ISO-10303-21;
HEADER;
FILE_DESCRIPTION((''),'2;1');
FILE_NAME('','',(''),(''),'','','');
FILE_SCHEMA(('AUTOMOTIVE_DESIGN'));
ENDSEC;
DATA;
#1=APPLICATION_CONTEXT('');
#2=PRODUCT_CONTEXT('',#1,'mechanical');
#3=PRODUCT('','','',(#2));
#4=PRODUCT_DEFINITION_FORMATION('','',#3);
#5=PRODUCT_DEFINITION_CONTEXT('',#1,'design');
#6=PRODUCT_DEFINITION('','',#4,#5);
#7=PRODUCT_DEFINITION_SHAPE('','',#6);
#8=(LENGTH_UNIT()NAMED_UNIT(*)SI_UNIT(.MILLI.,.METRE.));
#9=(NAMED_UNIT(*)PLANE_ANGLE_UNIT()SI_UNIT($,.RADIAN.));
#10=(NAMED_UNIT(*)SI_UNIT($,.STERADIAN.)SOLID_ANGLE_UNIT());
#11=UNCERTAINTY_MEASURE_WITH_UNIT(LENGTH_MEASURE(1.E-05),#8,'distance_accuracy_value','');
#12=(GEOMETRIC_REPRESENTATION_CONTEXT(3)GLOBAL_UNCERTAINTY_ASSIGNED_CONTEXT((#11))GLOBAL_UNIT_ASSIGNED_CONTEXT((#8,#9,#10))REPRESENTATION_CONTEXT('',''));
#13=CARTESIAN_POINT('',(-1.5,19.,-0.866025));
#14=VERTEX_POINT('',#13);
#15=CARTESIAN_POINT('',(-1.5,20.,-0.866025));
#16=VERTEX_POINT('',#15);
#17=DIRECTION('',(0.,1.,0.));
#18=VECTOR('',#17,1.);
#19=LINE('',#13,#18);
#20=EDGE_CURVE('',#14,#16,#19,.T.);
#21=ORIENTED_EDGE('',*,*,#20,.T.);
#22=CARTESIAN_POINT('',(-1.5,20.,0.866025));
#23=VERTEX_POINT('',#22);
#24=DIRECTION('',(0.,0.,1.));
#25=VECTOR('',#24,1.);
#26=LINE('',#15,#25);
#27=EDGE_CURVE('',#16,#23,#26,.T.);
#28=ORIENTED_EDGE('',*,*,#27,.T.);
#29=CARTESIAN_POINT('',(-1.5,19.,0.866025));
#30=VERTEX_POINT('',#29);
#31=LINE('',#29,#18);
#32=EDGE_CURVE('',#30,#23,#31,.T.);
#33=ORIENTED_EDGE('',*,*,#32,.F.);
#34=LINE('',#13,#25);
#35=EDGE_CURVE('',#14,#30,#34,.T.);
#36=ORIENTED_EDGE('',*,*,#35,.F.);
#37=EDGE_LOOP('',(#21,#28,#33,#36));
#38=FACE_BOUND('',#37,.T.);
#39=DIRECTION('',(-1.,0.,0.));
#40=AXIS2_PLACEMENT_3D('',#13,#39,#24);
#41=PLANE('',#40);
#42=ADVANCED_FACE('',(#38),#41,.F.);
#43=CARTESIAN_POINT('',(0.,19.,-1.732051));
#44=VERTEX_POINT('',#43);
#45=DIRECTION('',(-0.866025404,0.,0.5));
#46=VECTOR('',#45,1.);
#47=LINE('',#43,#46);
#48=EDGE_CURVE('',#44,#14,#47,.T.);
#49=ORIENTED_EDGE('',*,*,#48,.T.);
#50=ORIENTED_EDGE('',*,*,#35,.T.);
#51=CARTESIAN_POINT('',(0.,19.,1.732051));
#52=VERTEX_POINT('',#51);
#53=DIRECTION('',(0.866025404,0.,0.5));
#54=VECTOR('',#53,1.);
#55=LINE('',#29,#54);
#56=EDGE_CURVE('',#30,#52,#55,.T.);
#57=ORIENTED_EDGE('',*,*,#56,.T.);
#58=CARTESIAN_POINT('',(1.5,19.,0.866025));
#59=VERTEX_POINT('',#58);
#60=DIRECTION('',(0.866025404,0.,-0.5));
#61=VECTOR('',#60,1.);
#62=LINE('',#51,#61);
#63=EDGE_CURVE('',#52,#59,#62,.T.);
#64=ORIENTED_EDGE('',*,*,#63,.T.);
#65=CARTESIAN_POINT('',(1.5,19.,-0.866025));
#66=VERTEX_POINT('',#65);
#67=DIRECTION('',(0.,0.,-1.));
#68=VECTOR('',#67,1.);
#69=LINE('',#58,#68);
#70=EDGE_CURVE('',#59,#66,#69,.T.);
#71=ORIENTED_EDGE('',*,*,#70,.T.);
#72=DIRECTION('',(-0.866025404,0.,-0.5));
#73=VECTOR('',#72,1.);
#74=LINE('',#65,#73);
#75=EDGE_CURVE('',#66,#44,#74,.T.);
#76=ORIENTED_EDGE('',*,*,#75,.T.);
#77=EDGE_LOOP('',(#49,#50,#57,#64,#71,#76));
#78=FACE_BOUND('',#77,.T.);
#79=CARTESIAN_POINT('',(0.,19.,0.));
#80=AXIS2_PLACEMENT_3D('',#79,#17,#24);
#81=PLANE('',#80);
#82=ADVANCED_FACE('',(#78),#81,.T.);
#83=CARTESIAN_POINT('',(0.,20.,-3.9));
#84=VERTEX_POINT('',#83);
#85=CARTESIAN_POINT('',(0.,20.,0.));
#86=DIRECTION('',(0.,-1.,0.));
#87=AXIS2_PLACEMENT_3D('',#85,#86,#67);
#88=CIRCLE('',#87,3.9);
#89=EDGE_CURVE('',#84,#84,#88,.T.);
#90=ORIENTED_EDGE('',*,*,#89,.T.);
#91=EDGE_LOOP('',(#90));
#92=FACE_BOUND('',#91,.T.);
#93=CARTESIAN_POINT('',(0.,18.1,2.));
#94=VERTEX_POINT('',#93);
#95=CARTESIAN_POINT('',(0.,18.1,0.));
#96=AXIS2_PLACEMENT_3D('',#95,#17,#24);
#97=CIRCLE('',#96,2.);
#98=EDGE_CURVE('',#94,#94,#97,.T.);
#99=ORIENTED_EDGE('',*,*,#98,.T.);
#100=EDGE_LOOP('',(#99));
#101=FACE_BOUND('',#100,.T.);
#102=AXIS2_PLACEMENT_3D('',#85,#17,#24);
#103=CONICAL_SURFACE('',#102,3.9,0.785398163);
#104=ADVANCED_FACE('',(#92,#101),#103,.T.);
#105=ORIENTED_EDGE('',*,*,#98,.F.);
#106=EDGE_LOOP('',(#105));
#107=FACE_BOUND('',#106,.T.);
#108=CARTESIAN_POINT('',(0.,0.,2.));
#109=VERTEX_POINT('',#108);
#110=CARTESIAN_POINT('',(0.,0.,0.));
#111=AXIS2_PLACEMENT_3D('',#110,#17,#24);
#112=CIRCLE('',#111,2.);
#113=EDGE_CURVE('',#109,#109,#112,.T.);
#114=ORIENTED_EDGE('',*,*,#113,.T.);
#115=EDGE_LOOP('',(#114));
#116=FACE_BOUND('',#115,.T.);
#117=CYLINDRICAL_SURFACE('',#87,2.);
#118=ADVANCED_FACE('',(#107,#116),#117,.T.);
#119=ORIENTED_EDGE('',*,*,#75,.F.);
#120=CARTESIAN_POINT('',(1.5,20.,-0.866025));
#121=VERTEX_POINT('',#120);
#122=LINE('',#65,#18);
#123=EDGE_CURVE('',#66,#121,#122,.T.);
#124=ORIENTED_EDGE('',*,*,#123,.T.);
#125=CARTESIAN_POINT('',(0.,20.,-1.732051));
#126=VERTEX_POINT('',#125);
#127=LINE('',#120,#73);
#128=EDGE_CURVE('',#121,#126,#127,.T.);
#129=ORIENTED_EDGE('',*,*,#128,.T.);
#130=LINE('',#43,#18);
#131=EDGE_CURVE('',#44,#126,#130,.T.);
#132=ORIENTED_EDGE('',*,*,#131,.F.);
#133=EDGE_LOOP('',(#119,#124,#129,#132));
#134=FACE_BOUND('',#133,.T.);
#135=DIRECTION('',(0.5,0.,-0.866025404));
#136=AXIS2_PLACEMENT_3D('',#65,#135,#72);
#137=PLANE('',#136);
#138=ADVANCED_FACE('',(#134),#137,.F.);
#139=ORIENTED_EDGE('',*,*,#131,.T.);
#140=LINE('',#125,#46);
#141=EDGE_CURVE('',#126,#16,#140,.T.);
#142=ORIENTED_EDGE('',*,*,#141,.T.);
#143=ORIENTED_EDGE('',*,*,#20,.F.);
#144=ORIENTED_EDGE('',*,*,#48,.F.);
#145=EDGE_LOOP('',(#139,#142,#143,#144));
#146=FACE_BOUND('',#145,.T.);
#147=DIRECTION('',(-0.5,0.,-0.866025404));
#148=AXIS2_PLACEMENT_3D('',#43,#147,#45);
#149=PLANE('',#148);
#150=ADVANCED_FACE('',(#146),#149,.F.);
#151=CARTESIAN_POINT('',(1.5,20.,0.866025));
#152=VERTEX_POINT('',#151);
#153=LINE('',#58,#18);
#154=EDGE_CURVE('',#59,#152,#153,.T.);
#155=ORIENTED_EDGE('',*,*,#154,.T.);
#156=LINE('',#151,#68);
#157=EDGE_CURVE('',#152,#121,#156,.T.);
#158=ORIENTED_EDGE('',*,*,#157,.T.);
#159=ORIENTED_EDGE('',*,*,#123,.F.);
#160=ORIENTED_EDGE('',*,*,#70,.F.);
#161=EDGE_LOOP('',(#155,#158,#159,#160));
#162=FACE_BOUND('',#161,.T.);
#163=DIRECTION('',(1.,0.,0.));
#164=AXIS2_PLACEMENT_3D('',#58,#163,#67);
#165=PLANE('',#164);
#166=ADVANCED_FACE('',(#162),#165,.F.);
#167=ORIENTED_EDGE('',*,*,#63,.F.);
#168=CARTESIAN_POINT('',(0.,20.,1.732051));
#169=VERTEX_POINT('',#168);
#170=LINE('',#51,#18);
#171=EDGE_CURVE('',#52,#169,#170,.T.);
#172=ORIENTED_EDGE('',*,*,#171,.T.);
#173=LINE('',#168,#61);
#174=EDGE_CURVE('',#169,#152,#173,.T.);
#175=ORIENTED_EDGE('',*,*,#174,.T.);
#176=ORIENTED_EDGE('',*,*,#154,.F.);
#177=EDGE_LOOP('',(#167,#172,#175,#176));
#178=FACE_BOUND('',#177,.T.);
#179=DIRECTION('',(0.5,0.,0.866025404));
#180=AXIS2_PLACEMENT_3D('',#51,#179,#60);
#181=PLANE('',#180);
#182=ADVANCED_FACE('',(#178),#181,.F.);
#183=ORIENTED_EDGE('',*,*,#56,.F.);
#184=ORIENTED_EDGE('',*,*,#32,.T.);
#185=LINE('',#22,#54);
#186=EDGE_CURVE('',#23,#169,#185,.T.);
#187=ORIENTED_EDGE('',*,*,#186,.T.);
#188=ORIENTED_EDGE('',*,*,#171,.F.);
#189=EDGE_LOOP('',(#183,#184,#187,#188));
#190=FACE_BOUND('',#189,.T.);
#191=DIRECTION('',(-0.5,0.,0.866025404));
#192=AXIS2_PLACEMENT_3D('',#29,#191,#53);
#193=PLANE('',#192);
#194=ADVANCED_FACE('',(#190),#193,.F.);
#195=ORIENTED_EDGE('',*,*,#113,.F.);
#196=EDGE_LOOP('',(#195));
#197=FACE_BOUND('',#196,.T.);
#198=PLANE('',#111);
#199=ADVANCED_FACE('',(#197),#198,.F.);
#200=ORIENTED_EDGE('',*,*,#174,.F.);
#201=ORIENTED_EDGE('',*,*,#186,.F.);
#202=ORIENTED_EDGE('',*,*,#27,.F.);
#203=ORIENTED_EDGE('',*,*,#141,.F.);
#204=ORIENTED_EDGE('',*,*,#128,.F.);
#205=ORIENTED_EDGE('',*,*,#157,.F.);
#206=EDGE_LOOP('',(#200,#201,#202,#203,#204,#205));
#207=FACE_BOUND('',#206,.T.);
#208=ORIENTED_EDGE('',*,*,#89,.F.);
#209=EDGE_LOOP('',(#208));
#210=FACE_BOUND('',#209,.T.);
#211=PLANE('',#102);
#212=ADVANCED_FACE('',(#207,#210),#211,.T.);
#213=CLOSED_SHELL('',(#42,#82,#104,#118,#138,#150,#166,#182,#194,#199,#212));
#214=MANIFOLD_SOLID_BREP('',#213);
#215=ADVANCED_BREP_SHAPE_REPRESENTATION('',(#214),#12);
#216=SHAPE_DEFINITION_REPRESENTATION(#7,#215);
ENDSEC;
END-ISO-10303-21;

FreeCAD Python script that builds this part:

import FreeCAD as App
import Part
import Sketcher

V = App.Vector
Q = App.Units.Quantity


def add_polygon(sketch, points):
    """Adds a closed chain of lines whose ends are joined by coincident constraints."""
    first, n = sketch.GeometryCount, len(points)
    for a, b in zip(points, points[1:] + points[:1]):
        sketch.addGeometry(Part.LineSegment(App.Vector(*a, 0), App.Vector(*b, 0)), False)
    for i in range(n):
        sketch.addConstraint(Sketcher.Constraint("Coincident", first + i, 2, first + (i + 1) % n, 1))

doc = App.newDocument("Part")
body = doc.addObject("PartDesign::Body", "Body")

sketch1 = doc.addObject("Sketcher::SketchObject", "Sketch")
body.addObject(sketch1)
sketch1.AttachmentSupport = (doc.XZ_Plane, [""])
sketch1.MapMode = "FlatFace"
sketch1.addGeometry(Part.Circle(V(0, 0, 0), V(0, 0, 1), 2), False)
sketch1.addConstraint(Sketcher.Constraint("Coincident", 0, 3, -1, 1))
sketch1.addConstraint(Sketcher.Constraint("Diameter", 0, Q("4 mm")))
pad1 = doc.addObject("PartDesign::Pad", "Pad")
body.addObject(pad1)
pad1.Profile = sketch1
pad1.Length = 20
pad1.Reversed = True

sketch2 = doc.addObject("Sketcher::SketchObject", "Sketch001")
body.addObject(sketch2)
sketch2.AttachmentSupport = (doc.YZ_Plane, [""])
sketch2.MapMode = "FlatFace"
add_polygon(sketch2, [(20, -3.9), (20, 0), (16.1, 0)])
sketch2.addConstraint(Sketcher.Constraint("Vertical", 0))
sketch2.addConstraint(Sketcher.Constraint("Horizontal", 1))
sketch2.addConstraint(Sketcher.Constraint("PointOnObject", 0, 2, -1))
sketch2.addConstraint(Sketcher.Constraint("Equal", 1, 0))
sketch2.addConstraint(Sketcher.Constraint("DistanceX", 1, 2, 1, 1, Q("3.9 mm")))
sketch2.addConstraint(Sketcher.Constraint("DistanceX", -1, 1, 0, 2, Q("20 mm")))
revolution = doc.addObject("PartDesign::Revolution", "Revolution")
body.addObject(revolution)
revolution.Profile = sketch2
revolution.ReferenceAxis = (sketch2, ["H_Axis"])
revolution.Angle = 360

sketch3 = doc.addObject("Sketcher::SketchObject", "Sketch002")
body.addObject(sketch3)
sketch3.AttachmentSupport = (doc.XZ_Plane, [""])
sketch3.MapMode = "FlatFace"
sketch3.AttachmentOffset = App.Placement(V(0, 0, -20), App.Rotation())
add_polygon(sketch3, [(0, -1.7), (-1.5, -0.9), (-1.5, 0.9), (0, 1.7), (1.5, 0.9), (1.5, -0.9)])
sketch3.addConstraint(Sketcher.Constraint("Vertical", 1))
sketch3.addConstraint(Sketcher.Constraint("Vertical", 4))
sketch3.addConstraint(Sketcher.Constraint("Symmetric", 0, 2, 3, 2, -1, 1))
sketch3.addConstraint(Sketcher.Constraint("Symmetric", 2, 2, 5, 2, -1, 1))
sketch3.addConstraint(Sketcher.Constraint("PointOnObject", 2, 2, -2))
sketch3.addConstraint(Sketcher.Constraint("Parallel", 2, 5))
sketch3.addConstraint(Sketcher.Constraint("Horizontal", 1, 2, 3, 2))
sketch3.addConstraint(Sketcher.Constraint("Angle", 0, Q("150 deg")))
sketch3.addConstraint(Sketcher.Constraint("DistanceX", 1, 2, 3, 2, Q("3 mm")))
sketch3.addConstraint(Sketcher.Constraint("DistanceY", 1, 1, 1, 2, Q("1.732051 mm")))
pocket1 = doc.addObject("PartDesign::Pocket", "Pocket")
body.addObject(pocket1)
pocket1.Profile = sketch3
pocket1.Length = 1
pocket1.Reversed = True

doc.recompute()
